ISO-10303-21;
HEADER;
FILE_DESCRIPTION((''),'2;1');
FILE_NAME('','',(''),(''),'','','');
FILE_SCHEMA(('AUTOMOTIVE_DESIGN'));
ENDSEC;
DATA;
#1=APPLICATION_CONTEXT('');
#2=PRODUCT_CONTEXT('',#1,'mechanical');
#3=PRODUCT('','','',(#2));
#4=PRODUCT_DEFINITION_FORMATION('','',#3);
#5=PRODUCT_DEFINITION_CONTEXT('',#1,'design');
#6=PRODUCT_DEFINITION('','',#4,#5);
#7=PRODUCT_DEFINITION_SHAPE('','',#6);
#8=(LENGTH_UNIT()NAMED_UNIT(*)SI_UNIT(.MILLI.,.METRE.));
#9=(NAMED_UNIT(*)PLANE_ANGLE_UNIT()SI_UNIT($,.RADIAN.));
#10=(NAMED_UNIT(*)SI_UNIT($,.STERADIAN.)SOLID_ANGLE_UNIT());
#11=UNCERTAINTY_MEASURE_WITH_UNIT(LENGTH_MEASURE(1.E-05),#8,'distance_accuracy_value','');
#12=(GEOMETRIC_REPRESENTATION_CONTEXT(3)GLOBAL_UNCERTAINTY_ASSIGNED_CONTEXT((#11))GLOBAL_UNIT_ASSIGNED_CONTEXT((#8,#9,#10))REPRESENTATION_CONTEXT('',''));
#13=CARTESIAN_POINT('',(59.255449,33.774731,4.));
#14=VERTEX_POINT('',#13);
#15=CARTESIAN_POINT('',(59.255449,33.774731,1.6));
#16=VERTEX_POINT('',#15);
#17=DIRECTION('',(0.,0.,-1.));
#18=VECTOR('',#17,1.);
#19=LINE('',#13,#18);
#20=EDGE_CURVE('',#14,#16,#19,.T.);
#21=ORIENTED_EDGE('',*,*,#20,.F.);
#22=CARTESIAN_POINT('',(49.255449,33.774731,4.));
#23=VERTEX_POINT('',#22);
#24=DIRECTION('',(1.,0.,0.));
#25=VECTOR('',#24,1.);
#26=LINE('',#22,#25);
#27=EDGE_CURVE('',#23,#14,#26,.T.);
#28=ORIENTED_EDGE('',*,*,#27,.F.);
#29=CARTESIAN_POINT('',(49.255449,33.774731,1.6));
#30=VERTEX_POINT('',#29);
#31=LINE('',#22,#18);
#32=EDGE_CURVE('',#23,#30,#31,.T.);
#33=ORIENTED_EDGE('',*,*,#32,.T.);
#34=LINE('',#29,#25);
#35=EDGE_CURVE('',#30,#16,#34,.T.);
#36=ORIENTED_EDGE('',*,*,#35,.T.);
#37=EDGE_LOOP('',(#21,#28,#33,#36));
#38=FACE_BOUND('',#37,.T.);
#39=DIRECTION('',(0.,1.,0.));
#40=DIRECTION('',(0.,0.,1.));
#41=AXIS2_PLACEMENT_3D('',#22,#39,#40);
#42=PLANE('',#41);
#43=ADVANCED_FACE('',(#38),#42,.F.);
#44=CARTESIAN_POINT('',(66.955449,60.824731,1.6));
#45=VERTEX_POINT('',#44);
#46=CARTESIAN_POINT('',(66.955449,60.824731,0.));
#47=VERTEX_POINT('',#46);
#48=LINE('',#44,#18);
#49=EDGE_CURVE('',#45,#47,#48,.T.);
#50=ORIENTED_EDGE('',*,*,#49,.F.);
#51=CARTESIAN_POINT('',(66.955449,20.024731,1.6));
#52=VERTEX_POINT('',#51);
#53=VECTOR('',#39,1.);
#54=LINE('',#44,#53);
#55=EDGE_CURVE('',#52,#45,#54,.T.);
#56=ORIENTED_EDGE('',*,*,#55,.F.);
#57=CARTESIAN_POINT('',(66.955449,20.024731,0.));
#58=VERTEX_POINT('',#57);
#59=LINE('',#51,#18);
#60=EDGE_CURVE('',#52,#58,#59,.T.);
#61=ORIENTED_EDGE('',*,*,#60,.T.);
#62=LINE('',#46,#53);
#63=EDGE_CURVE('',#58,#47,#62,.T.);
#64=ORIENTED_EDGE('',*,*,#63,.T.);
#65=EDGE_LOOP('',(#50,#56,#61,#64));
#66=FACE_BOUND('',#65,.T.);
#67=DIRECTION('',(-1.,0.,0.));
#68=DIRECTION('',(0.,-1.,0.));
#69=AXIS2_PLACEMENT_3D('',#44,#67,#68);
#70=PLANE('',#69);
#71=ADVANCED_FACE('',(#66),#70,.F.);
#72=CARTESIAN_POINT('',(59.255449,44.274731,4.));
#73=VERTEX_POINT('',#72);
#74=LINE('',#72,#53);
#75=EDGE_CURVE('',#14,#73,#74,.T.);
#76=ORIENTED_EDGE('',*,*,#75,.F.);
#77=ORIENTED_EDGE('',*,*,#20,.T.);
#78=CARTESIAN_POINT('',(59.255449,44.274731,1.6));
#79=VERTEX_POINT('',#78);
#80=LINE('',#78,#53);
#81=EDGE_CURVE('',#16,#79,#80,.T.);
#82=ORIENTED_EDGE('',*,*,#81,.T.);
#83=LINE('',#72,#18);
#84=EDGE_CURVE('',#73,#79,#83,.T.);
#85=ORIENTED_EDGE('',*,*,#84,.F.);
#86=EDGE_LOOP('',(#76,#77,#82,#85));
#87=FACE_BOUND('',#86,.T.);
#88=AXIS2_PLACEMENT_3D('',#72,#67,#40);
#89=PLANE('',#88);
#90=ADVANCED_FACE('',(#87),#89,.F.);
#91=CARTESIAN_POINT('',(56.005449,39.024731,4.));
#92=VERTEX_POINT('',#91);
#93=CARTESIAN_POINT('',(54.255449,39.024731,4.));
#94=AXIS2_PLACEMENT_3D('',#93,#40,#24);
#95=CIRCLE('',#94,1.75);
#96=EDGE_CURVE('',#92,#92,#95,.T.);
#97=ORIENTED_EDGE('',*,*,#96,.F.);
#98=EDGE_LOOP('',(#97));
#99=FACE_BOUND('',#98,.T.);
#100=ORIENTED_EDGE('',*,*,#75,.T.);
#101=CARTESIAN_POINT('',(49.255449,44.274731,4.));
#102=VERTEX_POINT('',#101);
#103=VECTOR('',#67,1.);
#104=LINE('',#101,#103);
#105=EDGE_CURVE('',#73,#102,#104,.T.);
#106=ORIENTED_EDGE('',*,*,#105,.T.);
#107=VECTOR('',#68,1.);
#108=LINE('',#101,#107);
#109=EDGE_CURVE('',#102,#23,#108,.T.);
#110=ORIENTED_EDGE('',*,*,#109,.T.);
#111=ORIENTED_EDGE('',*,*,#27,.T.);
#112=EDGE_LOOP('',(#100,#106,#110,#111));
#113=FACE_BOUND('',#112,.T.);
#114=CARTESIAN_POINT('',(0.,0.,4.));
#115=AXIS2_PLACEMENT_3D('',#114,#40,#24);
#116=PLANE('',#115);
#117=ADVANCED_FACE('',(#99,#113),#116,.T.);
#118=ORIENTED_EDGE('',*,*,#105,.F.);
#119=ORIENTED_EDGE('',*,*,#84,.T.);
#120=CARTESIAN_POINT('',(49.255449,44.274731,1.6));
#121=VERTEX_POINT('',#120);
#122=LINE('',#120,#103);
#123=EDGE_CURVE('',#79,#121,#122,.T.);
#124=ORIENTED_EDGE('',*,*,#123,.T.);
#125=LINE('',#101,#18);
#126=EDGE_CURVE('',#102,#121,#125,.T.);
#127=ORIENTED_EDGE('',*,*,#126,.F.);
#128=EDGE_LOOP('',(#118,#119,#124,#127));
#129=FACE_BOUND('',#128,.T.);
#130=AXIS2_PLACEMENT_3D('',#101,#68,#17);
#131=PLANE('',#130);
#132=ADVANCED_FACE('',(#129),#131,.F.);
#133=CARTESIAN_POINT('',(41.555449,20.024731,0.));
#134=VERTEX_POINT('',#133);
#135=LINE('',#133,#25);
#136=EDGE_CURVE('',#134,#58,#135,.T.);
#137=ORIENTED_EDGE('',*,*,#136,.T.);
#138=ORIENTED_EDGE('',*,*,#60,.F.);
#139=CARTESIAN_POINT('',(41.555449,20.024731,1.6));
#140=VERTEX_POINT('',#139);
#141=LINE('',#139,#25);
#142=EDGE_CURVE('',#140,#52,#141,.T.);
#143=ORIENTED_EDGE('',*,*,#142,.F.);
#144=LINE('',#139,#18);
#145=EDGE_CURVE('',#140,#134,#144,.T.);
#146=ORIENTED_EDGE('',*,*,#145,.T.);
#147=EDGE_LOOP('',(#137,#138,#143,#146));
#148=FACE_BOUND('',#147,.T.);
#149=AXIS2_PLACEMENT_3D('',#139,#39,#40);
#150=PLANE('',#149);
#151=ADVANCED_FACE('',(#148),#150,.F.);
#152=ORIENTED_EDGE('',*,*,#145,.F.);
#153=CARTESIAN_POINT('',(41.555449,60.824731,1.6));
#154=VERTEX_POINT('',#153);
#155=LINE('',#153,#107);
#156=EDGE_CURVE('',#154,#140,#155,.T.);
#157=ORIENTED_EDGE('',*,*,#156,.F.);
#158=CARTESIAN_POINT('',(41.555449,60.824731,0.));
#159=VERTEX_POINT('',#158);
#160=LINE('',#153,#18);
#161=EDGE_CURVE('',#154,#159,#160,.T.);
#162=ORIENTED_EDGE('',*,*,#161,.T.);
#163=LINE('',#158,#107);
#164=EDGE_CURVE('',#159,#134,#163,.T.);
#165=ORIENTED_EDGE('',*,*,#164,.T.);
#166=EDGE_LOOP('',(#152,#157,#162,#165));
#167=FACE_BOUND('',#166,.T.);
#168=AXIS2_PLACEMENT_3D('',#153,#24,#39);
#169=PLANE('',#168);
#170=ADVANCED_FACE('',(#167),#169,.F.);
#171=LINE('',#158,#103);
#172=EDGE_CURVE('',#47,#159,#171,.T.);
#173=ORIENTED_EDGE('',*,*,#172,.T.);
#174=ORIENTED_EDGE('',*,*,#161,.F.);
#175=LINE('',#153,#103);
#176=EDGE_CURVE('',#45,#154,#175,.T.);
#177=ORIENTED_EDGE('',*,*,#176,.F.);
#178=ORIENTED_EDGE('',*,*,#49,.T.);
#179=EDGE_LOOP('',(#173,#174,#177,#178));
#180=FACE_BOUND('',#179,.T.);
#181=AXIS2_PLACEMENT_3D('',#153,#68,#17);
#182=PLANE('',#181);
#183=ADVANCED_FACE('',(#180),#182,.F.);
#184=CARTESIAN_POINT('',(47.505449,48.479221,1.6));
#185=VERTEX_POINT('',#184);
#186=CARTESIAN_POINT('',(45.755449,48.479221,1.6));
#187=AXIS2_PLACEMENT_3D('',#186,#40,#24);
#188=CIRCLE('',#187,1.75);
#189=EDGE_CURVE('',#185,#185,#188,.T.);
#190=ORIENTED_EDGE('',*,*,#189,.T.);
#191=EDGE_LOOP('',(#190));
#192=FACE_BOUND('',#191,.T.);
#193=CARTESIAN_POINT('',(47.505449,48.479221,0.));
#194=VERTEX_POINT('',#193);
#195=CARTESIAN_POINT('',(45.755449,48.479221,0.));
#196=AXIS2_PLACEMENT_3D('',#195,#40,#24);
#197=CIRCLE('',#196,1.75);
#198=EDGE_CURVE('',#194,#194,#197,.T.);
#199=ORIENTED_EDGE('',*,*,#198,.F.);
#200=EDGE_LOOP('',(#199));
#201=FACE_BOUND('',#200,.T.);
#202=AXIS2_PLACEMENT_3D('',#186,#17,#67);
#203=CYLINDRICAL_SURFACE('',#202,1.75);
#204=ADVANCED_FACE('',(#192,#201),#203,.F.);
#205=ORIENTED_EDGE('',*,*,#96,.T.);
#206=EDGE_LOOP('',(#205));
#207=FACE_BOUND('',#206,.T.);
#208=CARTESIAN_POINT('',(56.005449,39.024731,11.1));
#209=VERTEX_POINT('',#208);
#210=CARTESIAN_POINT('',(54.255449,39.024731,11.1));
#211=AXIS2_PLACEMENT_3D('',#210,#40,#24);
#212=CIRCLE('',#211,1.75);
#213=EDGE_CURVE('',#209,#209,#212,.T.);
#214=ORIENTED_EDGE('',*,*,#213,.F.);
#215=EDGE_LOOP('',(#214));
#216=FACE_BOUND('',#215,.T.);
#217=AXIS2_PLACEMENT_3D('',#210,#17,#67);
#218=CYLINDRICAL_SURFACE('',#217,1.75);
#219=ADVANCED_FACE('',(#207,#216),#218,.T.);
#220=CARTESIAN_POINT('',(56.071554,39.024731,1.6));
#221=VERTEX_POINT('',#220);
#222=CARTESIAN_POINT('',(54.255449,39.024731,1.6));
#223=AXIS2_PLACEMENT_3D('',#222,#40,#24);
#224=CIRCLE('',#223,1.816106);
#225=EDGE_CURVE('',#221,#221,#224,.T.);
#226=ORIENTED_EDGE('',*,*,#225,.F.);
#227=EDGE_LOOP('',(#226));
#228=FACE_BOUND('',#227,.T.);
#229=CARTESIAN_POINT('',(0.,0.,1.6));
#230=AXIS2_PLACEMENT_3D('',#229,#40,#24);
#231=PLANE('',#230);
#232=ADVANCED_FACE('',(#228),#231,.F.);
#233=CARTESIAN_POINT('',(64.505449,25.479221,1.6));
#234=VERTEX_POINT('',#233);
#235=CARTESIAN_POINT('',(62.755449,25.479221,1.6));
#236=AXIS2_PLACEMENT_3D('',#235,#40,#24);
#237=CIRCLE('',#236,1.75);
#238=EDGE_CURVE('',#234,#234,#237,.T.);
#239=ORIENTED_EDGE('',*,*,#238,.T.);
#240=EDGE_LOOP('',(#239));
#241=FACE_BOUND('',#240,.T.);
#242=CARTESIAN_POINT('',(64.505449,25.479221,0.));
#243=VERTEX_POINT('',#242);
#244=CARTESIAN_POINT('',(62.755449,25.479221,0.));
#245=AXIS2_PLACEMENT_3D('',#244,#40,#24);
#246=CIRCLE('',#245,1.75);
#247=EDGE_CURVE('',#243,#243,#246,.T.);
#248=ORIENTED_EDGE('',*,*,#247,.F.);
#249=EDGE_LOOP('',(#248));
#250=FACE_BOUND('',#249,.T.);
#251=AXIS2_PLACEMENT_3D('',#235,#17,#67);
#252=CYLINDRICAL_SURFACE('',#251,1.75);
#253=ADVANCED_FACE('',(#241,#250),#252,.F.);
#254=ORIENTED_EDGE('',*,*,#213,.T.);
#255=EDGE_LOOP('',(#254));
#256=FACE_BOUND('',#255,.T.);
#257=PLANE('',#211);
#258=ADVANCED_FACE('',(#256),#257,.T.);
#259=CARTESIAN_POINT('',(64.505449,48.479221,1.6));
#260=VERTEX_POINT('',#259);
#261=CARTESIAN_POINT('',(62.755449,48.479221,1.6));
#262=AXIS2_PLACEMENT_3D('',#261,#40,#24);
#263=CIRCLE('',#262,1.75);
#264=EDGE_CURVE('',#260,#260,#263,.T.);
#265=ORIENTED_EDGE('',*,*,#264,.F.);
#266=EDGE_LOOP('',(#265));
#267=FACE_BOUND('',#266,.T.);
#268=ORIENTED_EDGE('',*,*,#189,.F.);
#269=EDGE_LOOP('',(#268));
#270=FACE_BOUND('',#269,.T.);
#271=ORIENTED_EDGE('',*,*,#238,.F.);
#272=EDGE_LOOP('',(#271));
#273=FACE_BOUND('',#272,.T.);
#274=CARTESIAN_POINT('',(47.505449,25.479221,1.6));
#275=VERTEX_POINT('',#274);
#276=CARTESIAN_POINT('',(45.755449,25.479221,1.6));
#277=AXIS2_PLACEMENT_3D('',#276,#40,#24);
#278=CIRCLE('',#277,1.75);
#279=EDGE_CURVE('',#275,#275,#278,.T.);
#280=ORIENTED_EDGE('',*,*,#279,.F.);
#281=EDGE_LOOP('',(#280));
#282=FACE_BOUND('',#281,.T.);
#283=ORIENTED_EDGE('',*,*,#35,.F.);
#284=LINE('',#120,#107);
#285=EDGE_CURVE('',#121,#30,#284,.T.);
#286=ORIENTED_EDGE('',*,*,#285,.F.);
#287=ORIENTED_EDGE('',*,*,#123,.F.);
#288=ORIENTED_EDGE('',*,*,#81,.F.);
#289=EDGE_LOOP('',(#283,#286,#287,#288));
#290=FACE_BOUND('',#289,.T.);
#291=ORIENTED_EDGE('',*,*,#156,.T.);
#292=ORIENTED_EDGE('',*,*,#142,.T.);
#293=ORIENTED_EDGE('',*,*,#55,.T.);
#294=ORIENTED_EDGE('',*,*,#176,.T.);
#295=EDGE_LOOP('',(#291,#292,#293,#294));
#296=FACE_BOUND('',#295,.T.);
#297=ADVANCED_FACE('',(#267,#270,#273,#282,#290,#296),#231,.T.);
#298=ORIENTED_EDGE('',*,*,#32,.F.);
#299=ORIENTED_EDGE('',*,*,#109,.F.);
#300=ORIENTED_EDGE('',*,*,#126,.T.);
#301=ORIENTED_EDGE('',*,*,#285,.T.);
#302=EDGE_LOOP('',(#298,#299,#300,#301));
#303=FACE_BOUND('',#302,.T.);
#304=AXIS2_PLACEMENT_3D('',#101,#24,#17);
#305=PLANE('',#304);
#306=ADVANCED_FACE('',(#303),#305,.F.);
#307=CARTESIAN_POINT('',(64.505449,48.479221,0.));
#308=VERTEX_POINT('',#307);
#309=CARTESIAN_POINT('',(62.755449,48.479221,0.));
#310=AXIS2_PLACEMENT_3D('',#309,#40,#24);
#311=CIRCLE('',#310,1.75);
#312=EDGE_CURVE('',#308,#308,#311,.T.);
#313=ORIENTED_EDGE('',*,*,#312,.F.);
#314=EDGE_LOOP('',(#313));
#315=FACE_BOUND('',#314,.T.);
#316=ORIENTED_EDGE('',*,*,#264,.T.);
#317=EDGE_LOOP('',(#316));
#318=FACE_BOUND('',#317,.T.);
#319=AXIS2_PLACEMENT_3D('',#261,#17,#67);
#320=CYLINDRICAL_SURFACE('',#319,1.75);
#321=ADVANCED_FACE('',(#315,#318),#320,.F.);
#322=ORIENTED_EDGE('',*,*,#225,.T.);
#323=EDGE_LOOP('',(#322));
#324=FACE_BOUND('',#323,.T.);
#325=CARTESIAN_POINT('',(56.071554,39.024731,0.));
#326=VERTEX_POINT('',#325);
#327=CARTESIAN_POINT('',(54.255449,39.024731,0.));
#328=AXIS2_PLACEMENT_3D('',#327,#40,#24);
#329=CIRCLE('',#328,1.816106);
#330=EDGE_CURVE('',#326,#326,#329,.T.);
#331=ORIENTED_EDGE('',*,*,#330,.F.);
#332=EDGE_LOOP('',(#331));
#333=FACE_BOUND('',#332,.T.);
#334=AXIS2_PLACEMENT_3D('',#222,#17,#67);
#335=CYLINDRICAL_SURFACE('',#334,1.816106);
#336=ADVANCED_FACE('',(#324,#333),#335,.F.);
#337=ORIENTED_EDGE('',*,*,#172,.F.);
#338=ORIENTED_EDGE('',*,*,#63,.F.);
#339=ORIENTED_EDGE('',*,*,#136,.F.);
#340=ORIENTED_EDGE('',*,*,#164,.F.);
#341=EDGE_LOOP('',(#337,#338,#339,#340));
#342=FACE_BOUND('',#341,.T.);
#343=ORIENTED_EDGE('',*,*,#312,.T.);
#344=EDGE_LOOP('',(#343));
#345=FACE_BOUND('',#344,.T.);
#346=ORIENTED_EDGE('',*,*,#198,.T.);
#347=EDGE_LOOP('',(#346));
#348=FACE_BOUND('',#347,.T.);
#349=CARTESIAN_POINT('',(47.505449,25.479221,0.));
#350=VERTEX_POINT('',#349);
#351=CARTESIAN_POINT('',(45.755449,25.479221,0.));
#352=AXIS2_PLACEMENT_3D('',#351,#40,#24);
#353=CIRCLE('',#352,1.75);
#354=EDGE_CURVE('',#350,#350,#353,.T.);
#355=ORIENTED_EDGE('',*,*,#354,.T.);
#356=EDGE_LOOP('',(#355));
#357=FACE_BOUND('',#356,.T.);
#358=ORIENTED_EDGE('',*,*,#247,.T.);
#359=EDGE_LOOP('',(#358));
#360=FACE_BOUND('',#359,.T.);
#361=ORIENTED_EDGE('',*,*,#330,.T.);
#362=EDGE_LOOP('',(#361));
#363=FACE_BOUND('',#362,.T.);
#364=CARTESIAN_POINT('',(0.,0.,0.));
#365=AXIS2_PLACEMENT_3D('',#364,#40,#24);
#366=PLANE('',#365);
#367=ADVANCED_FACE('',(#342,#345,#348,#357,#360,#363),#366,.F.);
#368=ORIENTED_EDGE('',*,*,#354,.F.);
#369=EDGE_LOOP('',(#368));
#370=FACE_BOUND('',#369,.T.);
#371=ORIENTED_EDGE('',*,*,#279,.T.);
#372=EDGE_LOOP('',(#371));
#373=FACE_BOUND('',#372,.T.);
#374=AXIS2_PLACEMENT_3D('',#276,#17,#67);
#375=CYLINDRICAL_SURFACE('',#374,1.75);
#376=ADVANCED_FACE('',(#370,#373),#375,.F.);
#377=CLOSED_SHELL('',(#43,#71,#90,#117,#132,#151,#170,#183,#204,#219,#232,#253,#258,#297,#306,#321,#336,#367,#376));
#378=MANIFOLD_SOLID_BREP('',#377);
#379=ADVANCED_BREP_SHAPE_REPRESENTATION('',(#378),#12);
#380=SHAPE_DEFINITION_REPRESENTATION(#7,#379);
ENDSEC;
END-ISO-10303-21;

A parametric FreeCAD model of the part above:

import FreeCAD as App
import Part
import Sketcher


def add_polygon(sketch, points):
    """Adds a closed chain of lines whose ends are joined by coincident constraints."""
    first, n = sketch.GeometryCount, len(points)
    for a, b in zip(points, points[1:] + points[:1]):
        sketch.addGeometry(Part.LineSegment(App.Vector(*a, 0), App.Vector(*b, 0)), False)
    for i in range(n):
        sketch.addConstraint(Sketcher.Constraint("Coincident", first + i, 2, first + (i + 1) % n, 1))

doc = App.newDocument("Part")
body = doc.addObject("PartDesign::Body", "Body")

# Sketch on XY plane
sketch1 = doc.addObject("Sketcher::SketchObject", "Sketch")
body.addObject(sketch1)
sketch1.AttachmentSupport = (doc.XY_Plane, [""])
sketch1.MapMode = "FlatFace"
add_polygon(sketch1, [(41.555449, 60.824731), (41.555449, 20.024731), (66.955449, 20.024731), (66.955449, 60.824731)])  # lines 0-3
sketch1.addGeometry(Part.Circle(App.Vector(45.755449, 25.479221, 0), App.Vector(0, 0, 1), 1.75), False)  # 4
sketch1.addGeometry(Part.Circle(App.Vector(62.755449, 25.479221, 0), App.Vector(0, 0, 1), 1.75), False)  # 5
sketch1.addGeometry(Part.Circle(App.Vector(45.755449, 48.479221, 0), App.Vector(0, 0, 1), 1.75), False)  # 6
sketch1.addGeometry(Part.Circle(App.Vector(54.255449, 39.024731, 0), App.Vector(0, 0, 1), 1.816106), False)  # 7
sketch1.addGeometry(Part.Circle(App.Vector(62.755449, 48.479221, 0), App.Vector(0, 0, 1), 1.75), False)  # 8
sketch1.addConstraint([
    Sketcher.Constraint("Vertical", 0),
    Sketcher.Constraint("Horizontal", 1),
    Sketcher.Constraint("Vertical", 2),
    Sketcher.Constraint("Horizontal", 3),
    Sketcher.Constraint("Equal", 4, 5),
    Sketcher.Constraint("Equal", 5, 6),
    Sketcher.Constraint("Equal", 6, 8),
    Sketcher.Constraint("Horizontal", 4, 3, 5, 3),
    Sketcher.Constraint("Horizontal", 6, 3, 8, 3),
    Sketcher.Constraint("Vertical", 4, 3, 6, 3),
    Sketcher.Constraint("Vertical", 5, 3, 8, 3),
    Sketcher.Constraint("Diameter", 4, 3.5),
    Sketcher.Constraint("DistanceX", 1, 1, 1, 2, 25.4),
    Sketcher.Constraint("DistanceY", 0, 2, 0, 1, 40.8),
    Sketcher.Constraint("DistanceX", 4, 3, 5, 3, 17.0),
    Sketcher.Constraint("DistanceY", 4, 3, 6, 3, 23.0),
    Sketcher.Constraint("DistanceY", 0, 2, 7, 3, 19.0),
    Sketcher.Constraint("DistanceX", 6, 3, 7, 3, 8.5),
    Sketcher.Constraint("DistanceX", 0, 2, 4, 3, 4.2),
    Sketcher.Constraint("Diameter", 7, 3.632212),
    Sketcher.Constraint("DistanceX", -1, 1, 4, 3, 45.755449),
    Sketcher.Constraint("DistanceY", -1, 1, 4, 3, 25.479221),
    Sketcher.Constraint("DistanceY", -1, 1, 7, 3, 39.024731),
])
pad1 = doc.addObject("PartDesign::Pad", "Pad")
body.addObject(pad1)
pad1.Profile = sketch1
pad1.Length = 1.6

# Sketch on XY plane
sketch2 = doc.addObject("Sketcher::SketchObject", "Sketch001")
body.addObject(sketch2)
sketch2.AttachmentSupport = (doc.XY_Plane, [""])
sketch2.MapMode = "FlatFace"
sketch2.AttachmentOffset = App.Placement(App.Vector(0, 0, 1.6), App.Rotation())
add_polygon(sketch2, [(49.255449, 44.274731), (49.255449, 33.774731), (59.255449, 33.774731), (59.255449, 44.274731)])  # lines 0-3
sketch2.addConstraint([
    Sketcher.Constraint("Vertical", 0),
    Sketcher.Constraint("Horizontal", 1),
    Sketcher.Constraint("Vertical", 2),
    Sketcher.Constraint("Horizontal", 3),
    Sketcher.Constraint("DistanceX", 1, 1, 1, 2, 10.0),
    Sketcher.Constraint("DistanceY", 0, 2, 0, 1, 10.5),
    Sketcher.Constraint("DistanceX", -1, 1, 0, 2, 49.255449),
    Sketcher.Constraint("DistanceY", -1, 1, 0, 2, 33.774731),
])
pad2 = doc.addObject("PartDesign::Pad", "Pad001")
body.addObject(pad2)
pad2.Profile = sketch2
pad2.Length = 2.4

# Sketch on XY plane
sketch3 = doc.addObject("Sketcher::SketchObject", "Sketch002")
body.addObject(sketch3)
sketch3.AttachmentSupport = (doc.XY_Plane, [""])
sketch3.MapMode = "FlatFace"
sketch3.AttachmentOffset = App.Placement(App.Vector(0, 0, 4), App.Rotation())
sketch3.addGeometry(Part.Circle(App.Vector(54.255449, 39.024731, 0), App.Vector(0, 0, 1), 1.75), False)
sketch3.addConstraint([
    Sketcher.Constraint("Diameter", 0, 3.5),
    Sketcher.Constraint("DistanceX", -1, 1, 0, 3, 54.255449),
    Sketcher.Constraint("DistanceY", -1, 1, 0, 3, 39.024731),
])
pad3 = doc.addObject("PartDesign::Pad", "Pad002")
body.addObject(pad3)
pad3.Profile = sketch3
pad3.Length = 7.1

doc.recompute()
